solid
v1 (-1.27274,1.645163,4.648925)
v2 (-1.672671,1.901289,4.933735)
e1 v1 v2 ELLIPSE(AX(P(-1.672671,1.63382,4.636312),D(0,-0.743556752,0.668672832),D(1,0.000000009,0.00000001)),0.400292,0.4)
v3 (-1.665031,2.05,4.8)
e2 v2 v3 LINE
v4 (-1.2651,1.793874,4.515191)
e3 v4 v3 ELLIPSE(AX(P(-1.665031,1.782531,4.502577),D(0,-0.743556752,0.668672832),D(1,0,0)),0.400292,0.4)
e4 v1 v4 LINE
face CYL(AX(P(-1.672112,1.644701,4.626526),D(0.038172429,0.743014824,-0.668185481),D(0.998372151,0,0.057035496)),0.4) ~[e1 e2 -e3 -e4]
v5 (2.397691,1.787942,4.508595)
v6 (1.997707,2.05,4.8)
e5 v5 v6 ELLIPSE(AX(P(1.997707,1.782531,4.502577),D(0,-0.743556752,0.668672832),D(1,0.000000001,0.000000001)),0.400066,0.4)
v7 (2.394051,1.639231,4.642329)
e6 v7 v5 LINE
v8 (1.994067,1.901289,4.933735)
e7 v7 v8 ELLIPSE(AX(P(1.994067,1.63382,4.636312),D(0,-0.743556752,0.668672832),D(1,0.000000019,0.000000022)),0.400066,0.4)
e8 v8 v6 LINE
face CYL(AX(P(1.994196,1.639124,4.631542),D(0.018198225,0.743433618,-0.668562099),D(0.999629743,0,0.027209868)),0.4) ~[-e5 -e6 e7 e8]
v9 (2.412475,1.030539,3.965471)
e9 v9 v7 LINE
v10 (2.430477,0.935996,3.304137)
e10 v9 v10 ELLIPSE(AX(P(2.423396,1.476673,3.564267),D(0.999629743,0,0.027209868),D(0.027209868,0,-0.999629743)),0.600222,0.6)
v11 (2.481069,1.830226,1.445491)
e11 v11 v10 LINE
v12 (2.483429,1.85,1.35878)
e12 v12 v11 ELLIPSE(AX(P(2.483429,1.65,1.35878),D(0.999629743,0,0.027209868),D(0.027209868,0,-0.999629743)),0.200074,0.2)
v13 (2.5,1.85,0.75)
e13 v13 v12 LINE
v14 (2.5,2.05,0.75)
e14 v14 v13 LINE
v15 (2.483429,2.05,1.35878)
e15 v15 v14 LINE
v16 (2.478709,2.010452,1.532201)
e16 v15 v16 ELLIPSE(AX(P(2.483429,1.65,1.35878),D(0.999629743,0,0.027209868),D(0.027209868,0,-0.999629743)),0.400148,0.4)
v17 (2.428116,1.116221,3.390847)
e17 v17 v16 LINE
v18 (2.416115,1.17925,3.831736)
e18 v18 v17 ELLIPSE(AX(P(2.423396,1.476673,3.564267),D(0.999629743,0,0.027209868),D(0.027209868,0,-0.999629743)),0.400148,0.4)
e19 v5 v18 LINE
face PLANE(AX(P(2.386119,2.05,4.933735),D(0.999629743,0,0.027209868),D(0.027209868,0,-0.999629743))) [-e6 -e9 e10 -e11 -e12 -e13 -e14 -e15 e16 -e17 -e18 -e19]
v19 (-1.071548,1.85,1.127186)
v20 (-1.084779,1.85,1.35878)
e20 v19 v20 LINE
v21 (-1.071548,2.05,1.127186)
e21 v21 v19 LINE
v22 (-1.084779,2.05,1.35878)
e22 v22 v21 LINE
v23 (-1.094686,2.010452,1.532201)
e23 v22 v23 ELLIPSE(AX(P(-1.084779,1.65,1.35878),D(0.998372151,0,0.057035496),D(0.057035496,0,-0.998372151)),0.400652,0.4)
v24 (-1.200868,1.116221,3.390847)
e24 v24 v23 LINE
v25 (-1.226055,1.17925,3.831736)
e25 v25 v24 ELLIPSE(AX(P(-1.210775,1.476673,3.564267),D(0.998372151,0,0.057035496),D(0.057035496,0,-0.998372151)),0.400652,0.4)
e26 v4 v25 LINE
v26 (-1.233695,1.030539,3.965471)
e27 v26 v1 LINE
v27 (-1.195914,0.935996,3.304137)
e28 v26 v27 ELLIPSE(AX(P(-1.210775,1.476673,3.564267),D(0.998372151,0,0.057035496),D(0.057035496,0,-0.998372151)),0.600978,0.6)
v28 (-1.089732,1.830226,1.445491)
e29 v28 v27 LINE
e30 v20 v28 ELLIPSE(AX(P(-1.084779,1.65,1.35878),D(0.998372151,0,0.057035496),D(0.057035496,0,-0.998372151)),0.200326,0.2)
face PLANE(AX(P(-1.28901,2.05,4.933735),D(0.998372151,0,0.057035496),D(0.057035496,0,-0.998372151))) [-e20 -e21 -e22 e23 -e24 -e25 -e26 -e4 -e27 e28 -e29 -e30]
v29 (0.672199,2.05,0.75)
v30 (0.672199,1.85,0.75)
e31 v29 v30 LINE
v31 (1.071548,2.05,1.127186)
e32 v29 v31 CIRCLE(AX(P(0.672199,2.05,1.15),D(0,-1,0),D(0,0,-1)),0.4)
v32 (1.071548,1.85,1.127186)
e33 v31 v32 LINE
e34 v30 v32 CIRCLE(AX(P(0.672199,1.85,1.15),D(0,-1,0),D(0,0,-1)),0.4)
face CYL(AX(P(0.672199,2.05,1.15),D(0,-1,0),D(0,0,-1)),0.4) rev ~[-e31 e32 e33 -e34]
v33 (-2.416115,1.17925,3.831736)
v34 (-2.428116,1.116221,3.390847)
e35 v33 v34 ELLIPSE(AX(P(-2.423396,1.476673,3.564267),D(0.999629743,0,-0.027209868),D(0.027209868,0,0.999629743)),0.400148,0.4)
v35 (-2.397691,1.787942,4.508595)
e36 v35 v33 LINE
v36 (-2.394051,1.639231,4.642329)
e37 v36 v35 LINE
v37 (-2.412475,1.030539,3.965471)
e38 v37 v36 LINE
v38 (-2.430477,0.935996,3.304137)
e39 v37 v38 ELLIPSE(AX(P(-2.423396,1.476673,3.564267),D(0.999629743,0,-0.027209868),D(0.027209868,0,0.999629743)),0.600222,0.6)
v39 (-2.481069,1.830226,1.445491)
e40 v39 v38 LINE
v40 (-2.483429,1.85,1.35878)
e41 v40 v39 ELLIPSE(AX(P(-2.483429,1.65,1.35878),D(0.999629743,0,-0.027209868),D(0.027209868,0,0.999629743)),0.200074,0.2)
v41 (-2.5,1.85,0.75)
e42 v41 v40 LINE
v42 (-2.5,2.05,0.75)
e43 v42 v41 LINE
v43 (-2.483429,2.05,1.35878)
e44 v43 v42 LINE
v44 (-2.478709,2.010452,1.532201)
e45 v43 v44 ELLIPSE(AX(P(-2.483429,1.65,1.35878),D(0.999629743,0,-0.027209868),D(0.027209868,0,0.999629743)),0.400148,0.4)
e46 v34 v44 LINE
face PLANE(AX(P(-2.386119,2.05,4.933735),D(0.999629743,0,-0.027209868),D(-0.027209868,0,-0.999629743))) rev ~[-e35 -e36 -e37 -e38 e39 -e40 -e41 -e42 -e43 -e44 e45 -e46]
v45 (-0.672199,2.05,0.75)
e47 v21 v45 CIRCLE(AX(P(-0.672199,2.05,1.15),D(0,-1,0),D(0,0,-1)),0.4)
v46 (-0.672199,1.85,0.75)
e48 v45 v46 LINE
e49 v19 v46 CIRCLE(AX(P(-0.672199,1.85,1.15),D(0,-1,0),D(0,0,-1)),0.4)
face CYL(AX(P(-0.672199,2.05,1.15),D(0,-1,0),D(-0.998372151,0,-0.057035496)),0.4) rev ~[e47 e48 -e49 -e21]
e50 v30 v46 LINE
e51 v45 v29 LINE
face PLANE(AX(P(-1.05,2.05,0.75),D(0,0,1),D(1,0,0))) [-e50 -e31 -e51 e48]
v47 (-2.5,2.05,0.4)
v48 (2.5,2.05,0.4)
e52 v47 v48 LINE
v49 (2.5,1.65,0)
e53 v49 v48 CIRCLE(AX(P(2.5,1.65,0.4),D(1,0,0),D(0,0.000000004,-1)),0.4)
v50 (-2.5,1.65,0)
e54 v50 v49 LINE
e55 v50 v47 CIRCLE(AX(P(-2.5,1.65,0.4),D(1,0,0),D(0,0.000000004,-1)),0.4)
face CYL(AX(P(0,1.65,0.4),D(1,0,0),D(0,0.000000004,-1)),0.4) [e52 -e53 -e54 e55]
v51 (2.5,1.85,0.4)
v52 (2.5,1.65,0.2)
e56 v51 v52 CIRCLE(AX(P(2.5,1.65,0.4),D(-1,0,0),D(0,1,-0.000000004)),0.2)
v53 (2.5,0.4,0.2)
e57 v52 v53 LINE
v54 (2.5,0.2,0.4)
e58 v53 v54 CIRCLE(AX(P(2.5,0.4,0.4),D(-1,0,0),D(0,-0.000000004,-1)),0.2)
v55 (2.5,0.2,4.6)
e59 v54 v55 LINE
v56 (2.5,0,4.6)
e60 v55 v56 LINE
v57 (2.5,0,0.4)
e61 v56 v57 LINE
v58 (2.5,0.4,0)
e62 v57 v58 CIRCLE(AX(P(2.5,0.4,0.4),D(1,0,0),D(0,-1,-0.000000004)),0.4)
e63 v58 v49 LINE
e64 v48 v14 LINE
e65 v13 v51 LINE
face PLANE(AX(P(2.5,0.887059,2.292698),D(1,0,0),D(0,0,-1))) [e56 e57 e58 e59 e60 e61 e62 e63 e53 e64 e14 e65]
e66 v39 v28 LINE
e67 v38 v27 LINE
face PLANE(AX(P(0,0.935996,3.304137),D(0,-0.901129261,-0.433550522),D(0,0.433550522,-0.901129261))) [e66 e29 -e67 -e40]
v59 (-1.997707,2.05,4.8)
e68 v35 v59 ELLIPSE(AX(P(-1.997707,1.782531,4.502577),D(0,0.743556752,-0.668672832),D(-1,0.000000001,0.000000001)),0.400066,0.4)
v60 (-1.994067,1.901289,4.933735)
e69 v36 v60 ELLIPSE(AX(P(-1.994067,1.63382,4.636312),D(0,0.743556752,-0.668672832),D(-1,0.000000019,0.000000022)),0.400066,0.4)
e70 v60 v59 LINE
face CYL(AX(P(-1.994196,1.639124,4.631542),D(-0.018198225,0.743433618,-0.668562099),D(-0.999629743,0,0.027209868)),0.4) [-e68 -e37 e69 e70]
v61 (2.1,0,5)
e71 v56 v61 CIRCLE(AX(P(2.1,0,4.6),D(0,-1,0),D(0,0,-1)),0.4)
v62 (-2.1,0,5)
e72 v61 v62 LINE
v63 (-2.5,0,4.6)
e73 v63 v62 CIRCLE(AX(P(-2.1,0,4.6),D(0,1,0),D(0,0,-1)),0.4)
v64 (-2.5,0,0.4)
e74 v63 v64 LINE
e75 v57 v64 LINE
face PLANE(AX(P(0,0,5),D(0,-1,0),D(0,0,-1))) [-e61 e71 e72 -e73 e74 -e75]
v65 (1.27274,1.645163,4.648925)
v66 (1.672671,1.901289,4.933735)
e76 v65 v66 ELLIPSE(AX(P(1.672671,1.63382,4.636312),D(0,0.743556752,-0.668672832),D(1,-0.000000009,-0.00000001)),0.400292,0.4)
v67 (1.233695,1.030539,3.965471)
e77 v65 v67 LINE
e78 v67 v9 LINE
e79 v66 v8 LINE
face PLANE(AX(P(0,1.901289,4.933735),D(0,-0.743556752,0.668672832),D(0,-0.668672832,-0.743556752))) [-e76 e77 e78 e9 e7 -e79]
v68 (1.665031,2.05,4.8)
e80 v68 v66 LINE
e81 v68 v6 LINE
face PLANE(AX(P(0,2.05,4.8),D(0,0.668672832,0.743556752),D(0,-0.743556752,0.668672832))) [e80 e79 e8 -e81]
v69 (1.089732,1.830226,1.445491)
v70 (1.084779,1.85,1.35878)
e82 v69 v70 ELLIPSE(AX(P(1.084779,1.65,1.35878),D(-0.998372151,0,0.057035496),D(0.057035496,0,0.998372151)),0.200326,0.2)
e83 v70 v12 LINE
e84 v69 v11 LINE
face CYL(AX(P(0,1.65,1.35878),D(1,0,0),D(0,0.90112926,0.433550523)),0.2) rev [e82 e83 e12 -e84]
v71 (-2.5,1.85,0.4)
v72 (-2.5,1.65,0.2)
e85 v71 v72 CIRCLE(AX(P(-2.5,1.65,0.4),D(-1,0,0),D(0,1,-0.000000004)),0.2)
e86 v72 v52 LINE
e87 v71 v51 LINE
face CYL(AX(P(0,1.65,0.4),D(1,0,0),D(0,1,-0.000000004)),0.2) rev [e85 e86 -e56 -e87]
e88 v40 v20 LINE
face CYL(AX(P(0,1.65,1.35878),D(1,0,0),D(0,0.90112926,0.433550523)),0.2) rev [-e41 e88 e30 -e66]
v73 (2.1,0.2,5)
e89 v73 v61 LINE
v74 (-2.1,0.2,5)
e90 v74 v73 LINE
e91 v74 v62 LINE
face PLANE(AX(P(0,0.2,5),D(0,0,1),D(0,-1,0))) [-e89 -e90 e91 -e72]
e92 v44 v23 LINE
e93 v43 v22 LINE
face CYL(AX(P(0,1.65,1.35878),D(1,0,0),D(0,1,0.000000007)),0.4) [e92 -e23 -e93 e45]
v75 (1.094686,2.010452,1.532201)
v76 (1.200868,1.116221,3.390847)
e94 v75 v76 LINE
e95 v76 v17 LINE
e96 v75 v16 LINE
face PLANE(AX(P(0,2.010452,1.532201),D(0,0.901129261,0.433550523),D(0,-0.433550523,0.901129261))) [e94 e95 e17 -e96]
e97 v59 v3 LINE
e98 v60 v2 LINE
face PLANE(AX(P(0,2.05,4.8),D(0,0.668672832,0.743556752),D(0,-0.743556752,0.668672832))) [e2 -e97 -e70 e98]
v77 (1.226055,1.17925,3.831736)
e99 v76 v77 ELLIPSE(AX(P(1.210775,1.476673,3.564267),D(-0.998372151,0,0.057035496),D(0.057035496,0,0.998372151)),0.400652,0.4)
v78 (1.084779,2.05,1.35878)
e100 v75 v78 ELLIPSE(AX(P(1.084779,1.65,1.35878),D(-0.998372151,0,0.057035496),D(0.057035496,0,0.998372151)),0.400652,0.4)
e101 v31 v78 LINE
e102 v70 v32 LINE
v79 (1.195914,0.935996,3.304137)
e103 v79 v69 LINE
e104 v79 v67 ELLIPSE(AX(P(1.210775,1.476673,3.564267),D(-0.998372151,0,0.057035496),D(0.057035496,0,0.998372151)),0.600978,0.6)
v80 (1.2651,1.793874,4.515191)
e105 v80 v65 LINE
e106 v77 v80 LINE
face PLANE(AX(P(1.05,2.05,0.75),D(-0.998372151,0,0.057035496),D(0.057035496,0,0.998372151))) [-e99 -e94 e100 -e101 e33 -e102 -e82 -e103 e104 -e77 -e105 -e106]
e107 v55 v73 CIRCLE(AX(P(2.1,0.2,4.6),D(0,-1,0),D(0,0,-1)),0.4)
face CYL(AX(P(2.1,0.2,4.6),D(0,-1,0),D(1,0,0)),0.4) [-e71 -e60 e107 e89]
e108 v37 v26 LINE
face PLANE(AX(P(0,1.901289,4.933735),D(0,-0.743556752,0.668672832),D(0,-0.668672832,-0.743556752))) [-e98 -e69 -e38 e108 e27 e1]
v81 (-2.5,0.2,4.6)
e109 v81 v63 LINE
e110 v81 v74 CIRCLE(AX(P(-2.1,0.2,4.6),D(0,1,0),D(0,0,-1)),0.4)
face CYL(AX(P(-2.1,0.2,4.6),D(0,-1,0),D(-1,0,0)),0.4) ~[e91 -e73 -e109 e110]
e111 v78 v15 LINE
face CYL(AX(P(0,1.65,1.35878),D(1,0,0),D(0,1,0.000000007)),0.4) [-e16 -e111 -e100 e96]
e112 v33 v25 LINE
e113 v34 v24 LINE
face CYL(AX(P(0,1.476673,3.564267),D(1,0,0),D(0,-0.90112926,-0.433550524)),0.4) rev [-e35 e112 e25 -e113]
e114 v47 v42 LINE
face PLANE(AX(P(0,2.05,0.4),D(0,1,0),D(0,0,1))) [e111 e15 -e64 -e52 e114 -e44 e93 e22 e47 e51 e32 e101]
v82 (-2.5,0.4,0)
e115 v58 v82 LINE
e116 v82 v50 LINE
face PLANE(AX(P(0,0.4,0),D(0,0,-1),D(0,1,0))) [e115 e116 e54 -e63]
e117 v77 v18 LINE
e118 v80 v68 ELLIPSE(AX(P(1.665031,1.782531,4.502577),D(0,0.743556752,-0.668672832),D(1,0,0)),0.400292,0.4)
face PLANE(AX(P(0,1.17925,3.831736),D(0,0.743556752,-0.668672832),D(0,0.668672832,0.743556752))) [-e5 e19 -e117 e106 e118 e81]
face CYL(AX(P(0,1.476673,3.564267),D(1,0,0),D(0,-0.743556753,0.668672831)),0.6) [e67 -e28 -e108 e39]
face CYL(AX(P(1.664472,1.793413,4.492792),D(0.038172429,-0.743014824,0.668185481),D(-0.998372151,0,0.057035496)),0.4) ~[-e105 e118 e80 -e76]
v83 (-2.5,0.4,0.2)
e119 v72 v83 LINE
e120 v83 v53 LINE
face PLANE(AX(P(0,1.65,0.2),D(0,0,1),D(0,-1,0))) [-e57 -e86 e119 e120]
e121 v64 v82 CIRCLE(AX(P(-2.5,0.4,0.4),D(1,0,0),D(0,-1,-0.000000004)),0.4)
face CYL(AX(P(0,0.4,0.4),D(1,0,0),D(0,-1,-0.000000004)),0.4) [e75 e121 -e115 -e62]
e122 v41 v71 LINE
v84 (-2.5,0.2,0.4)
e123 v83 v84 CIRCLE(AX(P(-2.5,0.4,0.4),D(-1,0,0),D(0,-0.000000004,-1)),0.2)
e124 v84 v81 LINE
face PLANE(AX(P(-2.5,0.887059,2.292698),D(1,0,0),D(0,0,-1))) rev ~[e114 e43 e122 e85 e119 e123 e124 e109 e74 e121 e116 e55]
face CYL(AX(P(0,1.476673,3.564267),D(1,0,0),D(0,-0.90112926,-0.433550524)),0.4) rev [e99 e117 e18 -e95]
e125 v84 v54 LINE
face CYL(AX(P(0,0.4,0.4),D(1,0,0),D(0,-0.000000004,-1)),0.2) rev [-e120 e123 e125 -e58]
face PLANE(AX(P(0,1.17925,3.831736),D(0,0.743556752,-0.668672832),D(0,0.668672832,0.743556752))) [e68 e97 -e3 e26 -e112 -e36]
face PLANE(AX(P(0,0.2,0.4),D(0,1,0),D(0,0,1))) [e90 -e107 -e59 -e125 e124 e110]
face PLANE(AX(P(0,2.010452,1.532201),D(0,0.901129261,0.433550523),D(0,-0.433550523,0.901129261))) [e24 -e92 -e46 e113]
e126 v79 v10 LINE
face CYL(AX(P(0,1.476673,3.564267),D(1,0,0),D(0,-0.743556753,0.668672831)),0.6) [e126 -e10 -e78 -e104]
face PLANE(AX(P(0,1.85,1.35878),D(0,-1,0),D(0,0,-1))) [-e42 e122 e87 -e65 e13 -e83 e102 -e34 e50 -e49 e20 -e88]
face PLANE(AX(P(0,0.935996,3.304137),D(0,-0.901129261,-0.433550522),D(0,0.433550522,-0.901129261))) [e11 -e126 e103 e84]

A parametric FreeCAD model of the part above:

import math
import FreeCAD as App
import Part
import Sketcher

V = App.Vector
Q = App.Units.Quantity


def edges_at(feature, points):
    """Names of the edges that pass closest to the given points."""
    edges = feature.Shape.Edges
    near = lambda p: min(range(len(edges)), key=lambda i: edges[i].distToShape(Part.Vertex(*p))[0])
    return sorted({f"Edge{near(p) + 1}" for p in points})


def add_polygon(sketch, points):
    """Adds a closed chain of lines whose ends are joined by coincident constraints."""
    first, n = sketch.GeometryCount, len(points)
    for a, b in zip(points, points[1:] + points[:1]):
        sketch.addGeometry(Part.LineSegment(App.Vector(*a, 0), App.Vector(*b, 0)), False)
    for i in range(n):
        sketch.addConstraint(Sketcher.Constraint("Coincident", first + i, 2, first + (i + 1) % n, 1))

doc = App.newDocument("Part")
body = doc.addObject("PartDesign::Body", "Body")

# Sketch on YZ plane
sketch1 = body.newObject("Sketcher::SketchObject", "Sketch")
sketch1.AttachmentSupport = (doc.getObject("YZ_Plane"), [""])
sketch1.MapMode = "FlatFace"
sketch1.addGeometry(Part.LineSegment(V(0.4, 0, 0), V(1.65, 0, 0)), False)
sketch1.addGeometry(Part.ArcOfCircle(Part.Circle(V(1.65, 0.4, 0), V(0, 0, 1), 0.4), math.radians(-90), math.radians(0)), False)
sketch1.addGeometry(Part.LineSegment(V(2.05, 0.4, 0), V(2.05, 1.35878, 0)), False)
sketch1.addGeometry(Part.ArcOfCircle(Part.Circle(V(1.65, 1.35878, 0), V(0, 0, 1), 0.4), math.radians(0), math.radians(25.693097)), False)
sketch1.addGeometry(Part.LineSegment(V(2.010452, 1.532201, 0), V(1.116221, 3.390847, 0)), False)
sketch1.addGeometry(Part.ArcOfCircle(Part.Circle(V(1.476673, 3.564267, 0), V(0, 0, 1), 0.4), math.radians(138.035284), math.radians(205.693097)), False)
sketch1.addGeometry(Part.LineSegment(V(1.17925, 3.831736, 0), V(2.05, 4.8, 0)), False)
sketch1.addGeometry(Part.LineSegment(V(2.05, 4.8, 0), V(1.901289, 4.933735, 0)), False)
sketch1.addGeometry(Part.LineSegment(V(1.901289, 4.933735, 0), V(1.030539, 3.965471, 0)), False)
sketch1.addGeometry(Part.ArcOfCircle(Part.Circle(V(1.476673, 3.564267, 0), V(0, 0, 1), 0.6), math.radians(138.035284), math.radians(205.693097)), False)
sketch1.addGeometry(Part.LineSegment(V(0.935996, 3.304137, 0), V(1.830226, 1.445491, 0)), False)
sketch1.addGeometry(Part.ArcOfCircle(Part.Circle(V(1.65, 1.35878, 0), V(0, 0, 1), 0.2), math.radians(0), math.radians(25.693097)), False)
sketch1.addGeometry(Part.LineSegment(V(1.85, 1.35878, 0), V(1.85, 0.4, 0)), False)
sketch1.addGeometry(Part.ArcOfCircle(Part.Circle(V(1.65, 0.4, 0), V(0, 0, 1), 0.2), math.radians(-90), math.radians(0)), False)
sketch1.addGeometry(Part.LineSegment(V(1.65, 0.2, 0), V(0.4, 0.2, 0)), False)
sketch1.addGeometry(Part.ArcOfCircle(Part.Circle(V(0.4, 0.4, 0), V(0, 0, 1), 0.2), math.radians(-180), math.radians(-90)), False)
sketch1.addGeometry(Part.LineSegment(V(0.2, 0.4, 0), V(0.2, 5, 0)), False)
sketch1.addGeometry(Part.LineSegment(V(0.2, 5, 0), V(0, 5, 0)), False)
sketch1.addGeometry(Part.LineSegment(V(0, 5, 0), V(0, 0.4, 0)), False)
sketch1.addGeometry(Part.ArcOfCircle(Part.Circle(V(0.4, 0.4, 0), V(0, 0, 1), 0.4), math.radians(-180), math.radians(-90)), False)
sketch1.addConstraint(Sketcher.Constraint("Tangent", 0, 2, 1, 1))
sketch1.addConstraint(Sketcher.Constraint("Tangent", 1, 2, 2, 1))
sketch1.addConstraint(Sketcher.Constraint("Tangent", 2, 2, 3, 1))
sketch1.addConstraint(Sketcher.Constraint("Tangent", 3, 2, 4, 1))
sketch1.addConstraint(Sketcher.Constraint("Tangent", 4, 2, 5, 2))
sketch1.addConstraint(Sketcher.Constraint("Tangent", 5, 1, 6, 1))
sketch1.addConstraint(Sketcher.Constraint("Coincident", 6, 2, 7, 1))
sketch1.addConstraint(Sketcher.Constraint("Coincident", 7, 2, 8, 1))
sketch1.addConstraint(Sketcher.Constraint("Tangent", 8, 2, 9, 1))
sketch1.addConstraint(Sketcher.Constraint("Tangent", 9, 2, 10, 1))
sketch1.addConstraint(Sketcher.Constraint("Tangent", 10, 2, 11, 2))
sketch1.addConstraint(Sketcher.Constraint("Tangent", 11, 1, 12, 1))
sketch1.addConstraint(Sketcher.Constraint("Tangent", 12, 2, 13, 2))
sketch1.addConstraint(Sketcher.Constraint("Tangent", 13, 1, 14, 1))
sketch1.addConstraint(Sketcher.Constraint("Tangent", 14, 2, 15, 2))
sketch1.addConstraint(Sketcher.Constraint("Tangent", 15, 1, 16, 1))
sketch1.addConstraint(Sketcher.Constraint("Coincident", 16, 2, 17, 1))
sketch1.addConstraint(Sketcher.Constraint("Coincident", 17, 2, 18, 1))
sketch1.addConstraint(Sketcher.Constraint("Tangent", 18, 2, 19, 1))
sketch1.addConstraint(Sketcher.Constraint("Tangent", 19, 2, 0, 1))
sketch1.addConstraint(Sketcher.Constraint("Horizontal", 0))
sketch1.addConstraint(Sketcher.Constraint("Vertical", 2))
sketch1.addConstraint(Sketcher.Constraint("Vertical", 12))
sketch1.addConstraint(Sketcher.Constraint("Horizontal", 14))
sketch1.addConstraint(Sketcher.Constraint("Vertical", 16))
sketch1.addConstraint(Sketcher.Constraint("Horizontal", 17))
sketch1.addConstraint(Sketcher.Constraint("Vertical", 18))
sketch1.addConstraint(Sketcher.Constraint("Coincident", 9, 3, 5, 3))
sketch1.addConstraint(Sketcher.Constraint("Coincident", 11, 3, 3, 3))
sketch1.addConstraint(Sketcher.Constraint("Coincident", 13, 3, 1, 3))
sketch1.addConstraint(Sketcher.Constraint("Coincident", 19, 3, 15, 3))
sketch1.addConstraint(Sketcher.Constraint("Equal", 1, 3))
sketch1.addConstraint(Sketcher.Constraint("Equal", 3, 5))
sketch1.addConstraint(Sketcher.Constraint("Equal", 13, 15))
sketch1.addConstraint(Sketcher.Constraint("PointOnObject", 0, 2, -1))
sketch1.addConstraint(Sketcher.Constraint("PointOnObject", 17, 2, -2))
sketch1.addConstraint(Sketcher.Constraint("Perpendicular", 6, 7))
sketch1.addConstraint(Sketcher.Constraint("Perpendicular", 7, 8))
sketch1.addConstraint(Sketcher.Constraint("Parallel", 4, 10))
sketch1.addConstraint(Sketcher.Constraint("Vertical", 2, 2, 6, 2))
sketch1.addConstraint(Sketcher.Constraint("Radius", 1, Q("0.4 mm")))
sketch1.addConstraint(Sketcher.Constraint("Radius", 9, Q("0.6 mm")))
sketch1.addConstraint(Sketcher.Constraint("DistanceY", 16, 1, 16, 2, Q("4.6 mm")))
sketch1.addConstraint(Sketcher.Constraint("DistanceX", 0, 1, 0, 2, Q("1.25 mm")))
sketch1.addConstraint(Sketcher.Constraint("DistanceY", -1, 1, 6, 2, Q("4.8 mm")))
sketch1.addConstraint(Sketcher.Constraint("DistanceY", 5, 1, 7, 2, Q("1.101998 mm")))
sketch1.addConstraint(Sketcher.Constraint("DistanceY", 2, 1, 2, 2, Q("0.95878 mm")))
sketch1.addConstraint(Sketcher.Constraint("DistanceY", -1, 1, 3, 2, Q("1.532201 mm")))
pad1 = body.newObject("PartDesign::Pad", "Pad")
pad1.Profile = sketch1
pad1.Length = 5
pad1.Midplane = True

# Sketch on XZ plane
sketch2 = body.newObject("Sketcher::SketchObject", "Sketch001")
sketch2.AttachmentSupport = (doc.getObject("XZ_Plane"), [""])
sketch2.MapMode = "FlatFace"
sketch2.AttachmentOffset = App.Placement(V(0, 0, -2.05), App.Rotation())
add_polygon(sketch2, [(1.05, 0.75), (-1.05, 0.75), (-1.28901, 4.933735), (1.28901, 4.933735)])  # lines 0-3
add_polygon(sketch2, [(-2.5, 0.75), (-2.5, 4.933735), (-2.386119, 4.933735)])  # lines 4-6
add_polygon(sketch2, [(2.386119, 4.933735), (2.5, 4.933735), (2.5, 0.75)])  # lines 7-9
sketch2.addConstraint(Sketcher.Constraint("Horizontal", 0))
sketch2.addConstraint(Sketcher.Constraint("Horizontal", 2))
sketch2.addConstraint(Sketcher.Constraint("Vertical", 4))
sketch2.addConstraint(Sketcher.Constraint("Horizontal", 5))
sketch2.addConstraint(Sketcher.Constraint("Horizontal", 7))
sketch2.addConstraint(Sketcher.Constraint("Vertical", 8))
sketch2.addConstraint(Sketcher.Constraint("Symmetric", 4, 2, 7, 2, -2))
sketch2.addConstraint(Sketcher.Constraint("Horizontal", 2, 2, 4, 2))
sketch2.addConstraint(Sketcher.Constraint("Horizontal", 3, 2, 6, 2))
sketch2.addConstraint(Sketcher.Constraint("Horizontal", 6, 2, 8, 2))
sketch2.addConstraint(Sketcher.Constraint("Equal", 5, 7))
sketch2.addConstraint(Sketcher.Constraint("Equal", 1, 3))
sketch2.addConstraint(Sketcher.Constraint("DistanceX", 0, 2, 0, 1, Q("2.1 mm")))
sketch2.addConstraint(Sketcher.Constraint("DistanceX", 4, 2, 7, 2, Q("5 mm")))
sketch2.addConstraint(Sketcher.Constraint("DistanceX", 0, 2, -1, 1, Q("1.05 mm")))
sketch2.addConstraint(Sketcher.Constraint("DistanceY", -1, 1, 0, 2, Q("0.75 mm")))
sketch2.addConstraint(Sketcher.Constraint("DistanceX", 2, 1, 2, 2, Q("2.578021 mm")))
sketch2.addConstraint(Sketcher.Constraint("DistanceX", 5, 1, 5, 2, Q("0.113881 mm")))
sketch2.addConstraint(Sketcher.Constraint("DistanceY", 4, 1, 4, 2, Q("4.183735 mm")))
pocket1 = body.newObject("PartDesign::Pocket", "Pocket")
pocket1.Profile = sketch2
pocket1.Length = 1.5
pocket1.Reversed = True
doc.recompute()

fillet = body.newObject("PartDesign::Fillet", "Fillet")
fillet.Base = (pocket1, edges_at(pocket1, [
    (2.388, 1.976, 4.867),
    (-1.05, 1.95, 0.75),
    (1.05, 1.95, 0.75),
    (1.285, 1.976, 4.867),
    (-1.285, 1.976, 4.867),
    (-2.5, 0.1, 5),
    (2.5, 0.1, 5),
    (-2.388, 1.976, 4.867),
]))
fillet.Radius = 0.4

doc.recompute()
